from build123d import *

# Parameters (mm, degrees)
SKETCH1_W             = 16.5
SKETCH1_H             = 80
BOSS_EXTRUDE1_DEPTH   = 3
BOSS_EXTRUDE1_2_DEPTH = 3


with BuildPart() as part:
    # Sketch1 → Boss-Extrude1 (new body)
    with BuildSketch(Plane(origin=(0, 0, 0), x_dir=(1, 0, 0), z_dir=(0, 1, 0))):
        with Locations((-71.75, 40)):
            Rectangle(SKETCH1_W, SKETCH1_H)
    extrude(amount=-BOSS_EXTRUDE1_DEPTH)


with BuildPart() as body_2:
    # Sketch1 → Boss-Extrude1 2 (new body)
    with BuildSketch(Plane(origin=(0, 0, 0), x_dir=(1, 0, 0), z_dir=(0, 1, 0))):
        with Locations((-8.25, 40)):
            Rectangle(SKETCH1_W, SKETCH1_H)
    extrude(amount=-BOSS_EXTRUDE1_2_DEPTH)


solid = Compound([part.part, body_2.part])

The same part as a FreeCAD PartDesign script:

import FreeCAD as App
import Part
import Sketcher

V = App.Vector


def add_polygon(sketch, points):
    """Adds a closed chain of lines whose ends are joined by coincident constraints."""
    first, n = sketch.GeometryCount, len(points)
    for a, b in zip(points, points[1:] + points[:1]):
        sketch.addGeometry(Part.LineSegment(App.Vector(*a, 0), App.Vector(*b, 0)), False)
    for i in range(n):
        sketch.addConstraint(Sketcher.Constraint("Coincident", first + i, 2, first + (i + 1) % n, 1))

doc = App.newDocument("Part")
params = doc.addObject("Spreadsheet::Sheet", "Params")
for row, (alias, value) in enumerate([
    ("sketch1_height", "80 mm"),
    ("sketch1_width", "16.5 mm"),
    ("pad1_length", "3 mm"),
    ("sketch2_height", "80 mm"),
    ("sketch2_width", "16.5 mm"),
    ("pad2_length", "3 mm"),
], start=1):
    params.set(f"A{row}", alias)
    params.set(f"B{row}", "=" + value)
    params.setAlias(f"B{row}", alias)

body = doc.addObject("PartDesign::Body", "Body")

# Sketch on XZ plane
sketch1 = body.newObject("Sketcher::SketchObject", "Sketch")
sketch1.AttachmentSupport = (doc.getObject("XZ_Plane"), [""])
sketch1.MapMode = "FlatFace"
add_polygon(sketch1, [(-80, -80), (-80, 0), (-64, 0), (-64, -80)])  # lines 0-3
sketch1.addConstraint(Sketcher.Constraint("Vertical", 0))
sketch1.addConstraint(Sketcher.Constraint("Horizontal", 1))
sketch1.addConstraint(Sketcher.Constraint("Vertical", 2))
sketch1.addConstraint(Sketcher.Constraint("Horizontal", 3))
sketch1.addConstraint(Sketcher.Constraint("PointOnObject", 0, 2, -1))
sketch1.addConstraint(Sketcher.Constraint("DistanceY", 0, 1, 0, 2, 80.0))
sketch1.addConstraint(Sketcher.Constraint("DistanceX", 1, 1, 1, 2, 16.5))
sketch1.addConstraint(Sketcher.Constraint("DistanceX", 0, 2, -1, 1, 80.0))
sketch1.setExpression("Constraints[9]", "Params.sketch1_height")
sketch1.setExpression("Constraints[10]", "Params.sketch1_width")
pad1 = body.newObject("PartDesign::Pad", "Pad")
pad1.Profile = sketch1
pad1.setExpression("Length", "Params.pad1_length")
body2 = doc.addObject("PartDesign::Body", "Body001")

# Sketch on XZ plane
sketch2 = body2.newObject("Sketcher::SketchObject", "Sketch001")
sketch2.AttachmentSupport = (doc.getObject("XZ_Plane001"), [""])
sketch2.MapMode = "FlatFace"
add_polygon(sketch2, [(-16, -80), (-16, 0), (0, 0), (0, -80)])  # lines 0-3
sketch2.addConstraint(Sketcher.Constraint("Vertical", 0))
sketch2.addConstraint(Sketcher.Constraint("Horizontal", 1))
sketch2.addConstraint(Sketcher.Constraint("Vertical", 2))
sketch2.addConstraint(Sketcher.Constraint("Horizontal", 3))
sketch2.addConstraint(Sketcher.Constraint("Coincident", 1, 2, -1, 1))
sketch2.addConstraint(Sketcher.Constraint("DistanceY", 0, 1, 0, 2, 80.0))
sketch2.addConstraint(Sketcher.Constraint("DistanceX", 1, 1, 1, 2, 16.5))
sketch2.setExpression("Constraints[9]", "Params.sketch2_height")
sketch2.setExpression("Constraints[10]", "Params.sketch2_width")
pad2 = body2.newObject("PartDesign::Pad", "Pad001")
pad2.Profile = sketch2
pad2.setExpression("Length", "Params.pad2_length")

doc.recompute()
